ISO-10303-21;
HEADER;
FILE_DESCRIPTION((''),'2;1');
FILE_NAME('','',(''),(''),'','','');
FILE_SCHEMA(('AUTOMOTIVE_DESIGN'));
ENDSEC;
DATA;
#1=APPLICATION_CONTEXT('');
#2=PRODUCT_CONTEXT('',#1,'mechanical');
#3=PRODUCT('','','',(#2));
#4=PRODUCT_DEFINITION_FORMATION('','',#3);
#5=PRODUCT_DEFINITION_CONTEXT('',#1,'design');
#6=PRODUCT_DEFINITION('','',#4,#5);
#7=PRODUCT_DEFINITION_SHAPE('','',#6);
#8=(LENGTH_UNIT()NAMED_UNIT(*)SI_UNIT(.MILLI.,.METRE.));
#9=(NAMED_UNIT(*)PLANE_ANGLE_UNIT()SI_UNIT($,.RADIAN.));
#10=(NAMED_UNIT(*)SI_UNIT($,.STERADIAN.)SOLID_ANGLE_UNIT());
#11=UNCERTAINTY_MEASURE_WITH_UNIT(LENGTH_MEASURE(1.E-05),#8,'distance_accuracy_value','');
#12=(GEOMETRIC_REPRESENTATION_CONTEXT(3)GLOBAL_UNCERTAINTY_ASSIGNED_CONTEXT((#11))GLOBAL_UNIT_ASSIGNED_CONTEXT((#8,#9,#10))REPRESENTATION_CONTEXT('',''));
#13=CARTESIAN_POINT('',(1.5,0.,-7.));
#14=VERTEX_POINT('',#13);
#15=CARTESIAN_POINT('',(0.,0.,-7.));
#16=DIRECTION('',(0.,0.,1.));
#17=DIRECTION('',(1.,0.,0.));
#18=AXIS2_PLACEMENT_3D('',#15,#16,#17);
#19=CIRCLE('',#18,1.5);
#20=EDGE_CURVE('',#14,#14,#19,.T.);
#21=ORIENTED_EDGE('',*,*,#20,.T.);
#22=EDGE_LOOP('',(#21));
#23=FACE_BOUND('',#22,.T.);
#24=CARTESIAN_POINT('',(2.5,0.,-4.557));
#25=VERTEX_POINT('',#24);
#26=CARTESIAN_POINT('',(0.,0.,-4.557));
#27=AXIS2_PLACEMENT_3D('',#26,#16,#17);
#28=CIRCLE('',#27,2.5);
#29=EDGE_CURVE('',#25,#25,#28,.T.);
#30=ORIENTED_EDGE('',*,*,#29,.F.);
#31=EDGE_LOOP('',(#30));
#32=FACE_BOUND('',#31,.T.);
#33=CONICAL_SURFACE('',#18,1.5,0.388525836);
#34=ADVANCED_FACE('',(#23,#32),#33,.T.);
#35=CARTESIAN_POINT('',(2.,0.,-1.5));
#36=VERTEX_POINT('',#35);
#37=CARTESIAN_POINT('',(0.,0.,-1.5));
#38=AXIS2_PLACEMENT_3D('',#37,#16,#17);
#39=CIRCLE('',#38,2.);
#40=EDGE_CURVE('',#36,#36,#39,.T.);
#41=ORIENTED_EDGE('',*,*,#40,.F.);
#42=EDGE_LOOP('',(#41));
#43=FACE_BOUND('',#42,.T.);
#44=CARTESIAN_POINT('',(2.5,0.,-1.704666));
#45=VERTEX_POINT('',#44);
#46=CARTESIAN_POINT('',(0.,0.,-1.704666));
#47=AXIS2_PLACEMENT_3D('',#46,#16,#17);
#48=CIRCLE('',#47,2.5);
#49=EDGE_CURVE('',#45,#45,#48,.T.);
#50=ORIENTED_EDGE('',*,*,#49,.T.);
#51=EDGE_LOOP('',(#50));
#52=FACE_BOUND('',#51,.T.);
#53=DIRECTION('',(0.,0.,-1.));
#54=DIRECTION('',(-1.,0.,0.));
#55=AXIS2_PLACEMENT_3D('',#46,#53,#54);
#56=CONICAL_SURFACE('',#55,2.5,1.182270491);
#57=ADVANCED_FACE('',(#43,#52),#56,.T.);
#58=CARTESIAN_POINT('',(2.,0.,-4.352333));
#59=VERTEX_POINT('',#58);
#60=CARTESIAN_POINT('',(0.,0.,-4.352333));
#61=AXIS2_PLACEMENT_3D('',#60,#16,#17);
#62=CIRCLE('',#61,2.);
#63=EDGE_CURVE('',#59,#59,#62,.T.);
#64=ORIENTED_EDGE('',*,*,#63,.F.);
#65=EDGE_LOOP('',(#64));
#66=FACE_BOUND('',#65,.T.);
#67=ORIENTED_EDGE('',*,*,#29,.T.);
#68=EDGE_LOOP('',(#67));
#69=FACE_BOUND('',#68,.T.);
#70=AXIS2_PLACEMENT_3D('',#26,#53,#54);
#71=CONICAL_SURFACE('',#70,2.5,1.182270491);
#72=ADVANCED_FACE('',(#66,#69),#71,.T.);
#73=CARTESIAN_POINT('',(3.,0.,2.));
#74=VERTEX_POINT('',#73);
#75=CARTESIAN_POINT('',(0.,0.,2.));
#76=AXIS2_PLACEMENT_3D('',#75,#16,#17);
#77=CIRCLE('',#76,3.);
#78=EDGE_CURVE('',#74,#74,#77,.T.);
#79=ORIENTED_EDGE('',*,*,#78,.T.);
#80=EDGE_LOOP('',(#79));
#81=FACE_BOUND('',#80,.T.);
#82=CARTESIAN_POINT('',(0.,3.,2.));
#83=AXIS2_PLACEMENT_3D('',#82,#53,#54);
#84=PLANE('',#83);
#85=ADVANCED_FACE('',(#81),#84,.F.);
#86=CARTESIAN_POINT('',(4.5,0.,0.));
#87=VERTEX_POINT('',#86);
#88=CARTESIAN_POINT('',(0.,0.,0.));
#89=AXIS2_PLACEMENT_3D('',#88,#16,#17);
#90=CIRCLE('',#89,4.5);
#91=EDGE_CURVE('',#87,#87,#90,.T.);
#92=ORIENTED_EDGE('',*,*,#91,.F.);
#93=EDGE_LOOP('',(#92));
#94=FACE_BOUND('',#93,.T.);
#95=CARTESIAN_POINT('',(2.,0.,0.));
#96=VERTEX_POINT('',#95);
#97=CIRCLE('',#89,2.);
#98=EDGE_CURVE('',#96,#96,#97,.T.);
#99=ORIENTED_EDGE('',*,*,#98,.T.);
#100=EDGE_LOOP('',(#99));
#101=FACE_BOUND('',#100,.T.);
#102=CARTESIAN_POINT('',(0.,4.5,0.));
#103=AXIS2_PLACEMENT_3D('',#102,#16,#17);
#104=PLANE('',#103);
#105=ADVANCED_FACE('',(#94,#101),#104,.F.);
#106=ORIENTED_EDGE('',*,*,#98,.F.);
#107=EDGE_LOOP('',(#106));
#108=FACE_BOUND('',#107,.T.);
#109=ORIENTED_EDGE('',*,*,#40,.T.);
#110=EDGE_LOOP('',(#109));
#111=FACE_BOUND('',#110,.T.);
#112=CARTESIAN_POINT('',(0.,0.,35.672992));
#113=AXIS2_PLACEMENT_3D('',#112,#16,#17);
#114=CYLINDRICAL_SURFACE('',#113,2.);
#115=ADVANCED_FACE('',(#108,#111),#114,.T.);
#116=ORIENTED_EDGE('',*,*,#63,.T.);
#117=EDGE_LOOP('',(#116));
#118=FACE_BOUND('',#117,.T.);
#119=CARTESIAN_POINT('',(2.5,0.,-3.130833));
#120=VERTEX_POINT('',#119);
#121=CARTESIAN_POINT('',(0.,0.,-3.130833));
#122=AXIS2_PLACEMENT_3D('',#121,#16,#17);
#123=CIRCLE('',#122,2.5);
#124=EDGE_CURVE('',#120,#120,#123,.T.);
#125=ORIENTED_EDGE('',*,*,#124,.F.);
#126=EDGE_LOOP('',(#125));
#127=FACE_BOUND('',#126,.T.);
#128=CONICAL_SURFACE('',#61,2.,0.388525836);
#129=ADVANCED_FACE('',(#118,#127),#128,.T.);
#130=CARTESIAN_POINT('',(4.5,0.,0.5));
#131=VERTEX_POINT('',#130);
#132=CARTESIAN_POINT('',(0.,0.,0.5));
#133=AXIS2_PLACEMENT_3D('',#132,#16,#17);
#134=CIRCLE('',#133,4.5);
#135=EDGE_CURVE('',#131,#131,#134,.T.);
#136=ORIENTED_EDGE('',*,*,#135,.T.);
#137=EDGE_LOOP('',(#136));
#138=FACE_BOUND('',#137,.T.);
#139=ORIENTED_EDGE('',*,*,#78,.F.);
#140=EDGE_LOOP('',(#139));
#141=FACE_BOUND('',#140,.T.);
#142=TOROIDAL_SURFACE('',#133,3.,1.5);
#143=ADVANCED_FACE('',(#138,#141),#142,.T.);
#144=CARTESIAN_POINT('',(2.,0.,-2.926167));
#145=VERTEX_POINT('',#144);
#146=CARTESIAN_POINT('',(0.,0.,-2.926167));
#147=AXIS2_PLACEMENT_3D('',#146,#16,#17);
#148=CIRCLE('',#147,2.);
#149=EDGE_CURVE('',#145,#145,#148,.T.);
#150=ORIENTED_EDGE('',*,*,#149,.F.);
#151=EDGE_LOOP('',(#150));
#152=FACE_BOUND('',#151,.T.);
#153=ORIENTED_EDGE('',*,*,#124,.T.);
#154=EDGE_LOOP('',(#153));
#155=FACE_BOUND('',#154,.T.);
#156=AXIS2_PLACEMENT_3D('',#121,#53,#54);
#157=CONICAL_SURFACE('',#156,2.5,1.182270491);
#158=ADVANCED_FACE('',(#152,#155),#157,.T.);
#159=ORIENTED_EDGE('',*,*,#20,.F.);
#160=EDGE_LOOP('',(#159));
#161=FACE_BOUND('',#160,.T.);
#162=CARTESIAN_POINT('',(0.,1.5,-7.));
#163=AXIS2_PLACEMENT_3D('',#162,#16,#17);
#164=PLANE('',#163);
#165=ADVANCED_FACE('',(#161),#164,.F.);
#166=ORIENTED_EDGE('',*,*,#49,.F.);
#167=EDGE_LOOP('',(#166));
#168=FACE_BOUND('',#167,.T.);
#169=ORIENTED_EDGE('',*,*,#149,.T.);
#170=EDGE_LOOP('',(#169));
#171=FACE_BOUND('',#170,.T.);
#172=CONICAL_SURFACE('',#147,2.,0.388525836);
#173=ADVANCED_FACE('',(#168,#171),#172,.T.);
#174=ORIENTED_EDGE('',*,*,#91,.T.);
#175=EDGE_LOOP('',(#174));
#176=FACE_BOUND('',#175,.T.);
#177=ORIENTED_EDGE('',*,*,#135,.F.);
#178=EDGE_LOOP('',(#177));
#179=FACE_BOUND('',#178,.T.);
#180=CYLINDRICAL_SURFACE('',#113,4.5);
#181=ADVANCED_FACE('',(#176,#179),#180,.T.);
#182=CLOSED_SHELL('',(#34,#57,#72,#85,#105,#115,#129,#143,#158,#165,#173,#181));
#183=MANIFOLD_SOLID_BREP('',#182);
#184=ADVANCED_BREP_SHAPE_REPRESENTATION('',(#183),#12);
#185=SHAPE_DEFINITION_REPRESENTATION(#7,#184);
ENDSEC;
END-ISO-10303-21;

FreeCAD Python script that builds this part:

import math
import FreeCAD as App
import Part
import Sketcher
from FreeCAD import Vector
Q = App.Units.Quantity

doc = App.newDocument("Part")
body = doc.addObject("PartDesign::Body", "Body")

sketch1 = body.newObject("Sketcher::SketchObject", "Sketch")
sketch1.AttachmentSupport = (doc.getObject("YZ_Plane"), [""])
sketch1.MapMode = "FlatFace"
sketch1.addGeometry([
    Part.LineSegment(Vector(4.5, 0, 0), Vector(4.5, 0.5, 0)),
    Part.ArcOfCircle(Part.Circle(Vector(3, 0.5, 0), Vector(0, 0, 1), 1.5), math.radians(0), math.radians(90)),
    Part.LineSegment(Vector(3, 2, 0), Vector(0, 2, 0)),
    Part.LineSegment(Vector(0, 2, 0), Vector(0, -7, 0)),
    Part.LineSegment(Vector(0, -7, 0), Vector(1.5, -7, 0)),
    Part.LineSegment(Vector(1.5, -7, 0), Vector(2.5, -4.6, 0)),
    Part.LineSegment(Vector(2.5, -4.6, 0), Vector(2, -4.4, 0)),
    Part.LineSegment(Vector(2, -4.4, 0), Vector(2.5, -3.1, 0)),
    Part.LineSegment(Vector(2.5, -3.1, 0), Vector(2, -2.9, 0)),
    Part.LineSegment(Vector(2, -2.9, 0), Vector(2.5, -1.7, 0)),
    Part.LineSegment(Vector(2.5, -1.7, 0), Vector(2, -1.5, 0)),
    Part.LineSegment(Vector(2, -1.5, 0), Vector(2, 0, 0)),
    Part.LineSegment(Vector(2, 0, 0), Vector(4.5, 0, 0)),
], False)
sketch1.addConstraint([
    Sketcher.Constraint("Tangent", 0, 2, 1, 1),
    Sketcher.Constraint("Tangent", 1, 2, 2, 1),
    Sketcher.Constraint("Coincident", 2, 2, 3, 1),
    Sketcher.Constraint("Coincident", 3, 2, 4, 1),
    Sketcher.Constraint("Coincident", 4, 2, 5, 1),
    Sketcher.Constraint("Coincident", 5, 2, 6, 1),
    Sketcher.Constraint("Coincident", 6, 2, 7, 1),
    Sketcher.Constraint("Coincident", 7, 2, 8, 1),
    Sketcher.Constraint("Coincident", 8, 2, 9, 1),
    Sketcher.Constraint("Coincident", 9, 2, 10, 1),
    Sketcher.Constraint("Coincident", 10, 2, 11, 1),
    Sketcher.Constraint("Coincident", 11, 2, 12, 1),
    Sketcher.Constraint("Coincident", 12, 2, 0, 1),
    Sketcher.Constraint("Vertical", 0),
    Sketcher.Constraint("Horizontal", 2),
    Sketcher.Constraint("Vertical", 3),
    Sketcher.Constraint("Horizontal", 4),
    Sketcher.Constraint("Vertical", 11),
    Sketcher.Constraint("Horizontal", 12),
    Sketcher.Constraint("PointOnObject", 2, 2, -2),
    Sketcher.Constraint("PointOnObject", 11, 2, -1),
    Sketcher.Constraint("Perpendicular", 5, 6),
    Sketcher.Constraint("Perpendicular", 6, 7),
    Sketcher.Constraint("Perpendicular", 7, 8),
    Sketcher.Constraint("Perpendicular", 8, 9),
    Sketcher.Constraint("Perpendicular", 9, 10),
    Sketcher.Constraint("Vertical", 5, 2, 7, 2),
    Sketcher.Constraint("Vertical", 6, 2, 8, 2),
    Sketcher.Constraint("Vertical", 7, 2, 9, 2),
    Sketcher.Constraint("Vertical", 8, 2, 10, 2),
    Sketcher.Constraint("Equal", 4, 11),
    Sketcher.Constraint("Radius", 1, Q("1.5 mm")),
    Sketcher.Constraint("DistanceX", 2, 2, 2, 1, Q("3 mm")),
    Sketcher.Constraint("DistanceY", 3, 2, 3, 1, Q("9 mm")),
    Sketcher.Constraint("DistanceX", 4, 1, 4, 2, Q("1.5 mm")),
    Sketcher.Constraint("DistanceX", 12, 1, 12, 2, Q("2.5 mm")),
    Sketcher.Constraint("DistanceY", 0, 1, 0, 2, Q("0.5 mm")),
    Sketcher.Constraint("DistanceX", 4, 2, 5, 2, Q("1 mm")),
])
revolution = body.newObject("PartDesign::Revolution", "Revolution")
revolution.Profile = sketch1
revolution.ReferenceAxis = (sketch1, ["V_Axis"])
revolution.Angle = 360

doc.recompute()
